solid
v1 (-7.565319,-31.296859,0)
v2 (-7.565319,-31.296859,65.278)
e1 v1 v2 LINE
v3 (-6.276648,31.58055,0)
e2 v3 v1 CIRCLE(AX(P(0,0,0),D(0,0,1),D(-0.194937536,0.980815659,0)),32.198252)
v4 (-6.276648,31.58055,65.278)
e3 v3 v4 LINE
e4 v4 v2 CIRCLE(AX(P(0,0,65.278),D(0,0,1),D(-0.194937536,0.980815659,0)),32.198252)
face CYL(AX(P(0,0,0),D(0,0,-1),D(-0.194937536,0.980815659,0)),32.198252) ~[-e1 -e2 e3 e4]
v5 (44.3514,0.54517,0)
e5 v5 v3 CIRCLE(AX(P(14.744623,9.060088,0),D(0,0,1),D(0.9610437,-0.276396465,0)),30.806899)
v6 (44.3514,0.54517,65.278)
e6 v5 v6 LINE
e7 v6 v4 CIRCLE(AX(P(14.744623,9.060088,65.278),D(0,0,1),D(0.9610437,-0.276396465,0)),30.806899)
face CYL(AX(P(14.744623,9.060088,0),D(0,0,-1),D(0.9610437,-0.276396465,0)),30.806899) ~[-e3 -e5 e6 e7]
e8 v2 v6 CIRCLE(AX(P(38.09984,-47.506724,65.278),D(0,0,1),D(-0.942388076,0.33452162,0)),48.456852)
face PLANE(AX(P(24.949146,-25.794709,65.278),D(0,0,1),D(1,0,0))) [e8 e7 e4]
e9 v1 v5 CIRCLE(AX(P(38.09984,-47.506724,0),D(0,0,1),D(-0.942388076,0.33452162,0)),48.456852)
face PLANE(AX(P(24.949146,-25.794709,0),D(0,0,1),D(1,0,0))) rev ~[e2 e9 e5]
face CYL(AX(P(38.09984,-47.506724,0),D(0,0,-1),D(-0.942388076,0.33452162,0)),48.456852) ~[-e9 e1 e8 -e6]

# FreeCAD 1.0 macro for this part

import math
import FreeCAD as App
import Part
import Sketcher
from FreeCAD import Vector
Q = App.Units.Quantity

doc = App.newDocument("Part")
body = doc.addObject("PartDesign::Body", "Body")

sketch1 = body.newObject("Sketcher::SketchObject", "Sketch")
sketch1.AttachmentSupport = (doc.getObject("XY_Plane"), [""])
sketch1.MapMode = "FlatFace"
sketch1.addGeometry([
    Part.ArcOfCircle(Part.Circle(Vector(15, 9, 0), Vector(0, 0, 1), 31), math.radians(-16), math.radians(133)),
    Part.ArcOfCircle(Part.Circle(Vector(0, 0, 0), Vector(0, 0, 1), 32), math.radians(101), math.radians(256)),
    Part.ArcOfCircle(Part.Circle(Vector(38, -48, 0), Vector(0, 0, 1), 48), math.radians(160), math.radians(443)),
], False)
sketch1.addConstraint([
    Sketcher.Constraint("Coincident", 0, 2, 1, 1),
    Sketcher.Constraint("Coincident", 1, 2, 2, 1),
    Sketcher.Constraint("Coincident", 2, 2, 0, 1),
    Sketcher.Constraint("Coincident", 1, 3, -1, 1),
    Sketcher.Constraint("Radius", 0, 30.806899),
    Sketcher.Constraint("Radius", 2, 48.456852),
    Sketcher.Constraint("Radius", 1, 32.198252),
    Sketcher.Constraint("DistanceX", -1, 1, 2, 2, 44.3514),
    Sketcher.Constraint("DistanceY", -1, 1, 0, 3, 9.060088),
    Sketcher.Constraint("DistanceX", -1, 1, 2, 3, 38.09984),
    Sketcher.Constraint("DistanceX", 0, 2, -1, 1, 6.276648),
])
pad1 = body.newObject("PartDesign::Pad", "Pad")
pad1.Profile = sketch1
pad1.Length = Q("2.57 in")

doc.recompute()
